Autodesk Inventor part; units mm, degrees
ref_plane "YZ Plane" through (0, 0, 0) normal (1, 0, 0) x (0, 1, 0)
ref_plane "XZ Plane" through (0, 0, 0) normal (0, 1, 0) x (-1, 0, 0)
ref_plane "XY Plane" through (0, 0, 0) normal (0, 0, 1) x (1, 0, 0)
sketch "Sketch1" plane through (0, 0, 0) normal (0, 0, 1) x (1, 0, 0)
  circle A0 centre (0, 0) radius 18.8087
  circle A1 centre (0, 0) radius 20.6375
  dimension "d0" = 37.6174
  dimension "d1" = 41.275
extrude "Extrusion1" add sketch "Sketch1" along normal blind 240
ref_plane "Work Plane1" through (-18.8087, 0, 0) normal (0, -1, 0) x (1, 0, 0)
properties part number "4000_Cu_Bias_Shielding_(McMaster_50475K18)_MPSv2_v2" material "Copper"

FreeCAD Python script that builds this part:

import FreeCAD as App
import Part
import Sketcher
Q = App.Units.Quantity

doc = App.newDocument("Part")
body = doc.addObject("PartDesign::Body", "Body")

# Sketch on XY plane
sketch1 = body.newObject("Sketcher::SketchObject", "Sketch")
sketch1.AttachmentSupport = (doc.getObject("XY_Plane"), [""])
sketch1.MapMode = "FlatFace"
sketch1.addGeometry([
    Part.Circle(App.Vector(0, 0, 0), App.Vector(0, 0, 1), 20.6375),
    Part.Circle(App.Vector(0, 0, 0), App.Vector(0, 0, 1), 18.8087),
], False)
sketch1.addConstraint([
    Sketcher.Constraint("Coincident", 0, 3, -1, 1),
    Sketcher.Constraint("Coincident", 1, 3, -1, 1),
    Sketcher.Constraint("Diameter", 0, Q("1.625 in")),
    Sketcher.Constraint("Diameter", 1, Q("1.481 in")),
])
pad1 = body.newObject("PartDesign::Pad", "Pad")
pad1.Profile = sketch1
pad1.Length = 240

doc.recompute()
